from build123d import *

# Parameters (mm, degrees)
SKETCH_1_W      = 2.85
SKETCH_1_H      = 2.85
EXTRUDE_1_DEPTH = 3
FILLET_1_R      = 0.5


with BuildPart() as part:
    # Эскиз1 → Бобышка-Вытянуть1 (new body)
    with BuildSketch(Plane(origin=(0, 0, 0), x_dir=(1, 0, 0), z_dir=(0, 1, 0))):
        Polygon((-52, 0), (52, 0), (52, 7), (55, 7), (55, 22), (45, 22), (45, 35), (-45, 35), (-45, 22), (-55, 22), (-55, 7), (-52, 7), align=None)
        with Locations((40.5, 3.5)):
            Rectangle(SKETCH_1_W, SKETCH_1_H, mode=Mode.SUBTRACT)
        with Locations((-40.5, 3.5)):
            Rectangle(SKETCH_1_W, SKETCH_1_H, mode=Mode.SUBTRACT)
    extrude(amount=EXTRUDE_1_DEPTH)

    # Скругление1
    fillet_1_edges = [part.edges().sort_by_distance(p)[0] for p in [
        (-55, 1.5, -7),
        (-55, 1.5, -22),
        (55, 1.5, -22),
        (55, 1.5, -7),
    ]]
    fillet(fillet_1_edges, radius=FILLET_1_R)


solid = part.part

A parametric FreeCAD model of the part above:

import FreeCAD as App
import Part
import Sketcher
from FreeCAD import Vector
Q = App.Units.Quantity


def edges_at(feature, points):
    """Names of the edges that pass closest to the given points."""
    edges = feature.Shape.Edges
    near = lambda p: min(range(len(edges)), key=lambda i: edges[i].distToShape(Part.Vertex(*p))[0])
    return sorted({f"Edge{near(p) + 1}" for p in points})


def add_polygon(sketch, points):
    """Adds a closed chain of lines whose ends are joined by coincident constraints."""
    first, n = sketch.GeometryCount, len(points)
    for a, b in zip(points, points[1:] + points[:1]):
        sketch.addGeometry(Part.LineSegment(App.Vector(*a, 0), App.Vector(*b, 0)), False)
    for i in range(n):
        sketch.addConstraint(Sketcher.Constraint("Coincident", first + i, 2, first + (i + 1) % n, 1))

doc = App.newDocument("Part")
body = doc.addObject("PartDesign::Body", "Body")

# Sketch on XZ plane
sketch1 = doc.addObject("Sketcher::SketchObject", "Sketch")
body.addObject(sketch1)
sketch1.AttachmentSupport = (doc.XZ_Plane, [""])
sketch1.MapMode = "FlatFace"
add_polygon(sketch1, [(-52, 0), (52, 0), (52, -7), (55, -7), (55, -22), (45, -22), (45, -35), (-45, -35), (-45, -22), (-55, -22), (-55, -7), (-52, -7)])  # lines 0-11
add_polygon(sketch1, [(-39.1, -2.1), (-41.9, -2.1), (-41.9, -4.9), (-39.1, -4.9)])  # lines 12-15
add_polygon(sketch1, [(41.9, -2.1), (39.1, -2.1), (39.1, -4.9), (41.9, -4.9)])  # lines 16-19
sketch1.addConstraint([
    Sketcher.Constraint("Horizontal", 0),
    Sketcher.Constraint("Vertical", 1),
    Sketcher.Constraint("Horizontal", 2),
    Sketcher.Constraint("Vertical", 3),
    Sketcher.Constraint("Horizontal", 4),
    Sketcher.Constraint("Vertical", 5),
    Sketcher.Constraint("Horizontal", 6),
    Sketcher.Constraint("Vertical", 7),
    Sketcher.Constraint("Horizontal", 8),
    Sketcher.Constraint("Vertical", 9),
    Sketcher.Constraint("Horizontal", 10),
    Sketcher.Constraint("Vertical", 11),
    Sketcher.Constraint("Horizontal", 12),
    Sketcher.Constraint("Vertical", 13),
    Sketcher.Constraint("Horizontal", 14),
    Sketcher.Constraint("Vertical", 15),
    Sketcher.Constraint("Horizontal", 16),
    Sketcher.Constraint("Vertical", 17),
    Sketcher.Constraint("Horizontal", 18),
    Sketcher.Constraint("Vertical", 19),
    Sketcher.Constraint("Symmetric", 0, 2, 11, 2, -1, 1),
    Sketcher.Constraint("Symmetric", 4, 2, 7, 2, -2),
    Sketcher.Constraint("Symmetric", 2, 2, 9, 2, -2),
    Sketcher.Constraint("Symmetric", 15, 2, 16, 2, -2),
    Sketcher.Constraint("Symmetric", 13, 2, 18, 2, -2),
    Sketcher.Constraint("Equal", 18, 13),
    Sketcher.Constraint("DistanceX", 0, 1, 0, 2, Q("104 mm")),
    Sketcher.Constraint("DistanceX", 2, 1, 2, 2, Q("3 mm")),
    Sketcher.Constraint("DistanceX", 4, 2, 4, 1, Q("10 mm")),
    Sketcher.Constraint("DistanceY", 1, 2, 1, 1, Q("7 mm")),
    Sketcher.Constraint("DistanceY", 3, 2, 3, 1, Q("15 mm")),
    Sketcher.Constraint("DistanceY", 5, 2, 5, 1, Q("13 mm")),
    Sketcher.Constraint("DistanceX", 12, 2, 12, 1, Q("2.85 mm")),
    Sketcher.Constraint("DistanceX", 12, 2, -1, 1, Q("41.925 mm")),
    Sketcher.Constraint("DistanceY", 12, 2, -1, 1, Q("2.075 mm")),
])
pad1 = doc.addObject("PartDesign::Pad", "Pad")
body.addObject(pad1)
pad1.Profile = sketch1
pad1.Length = 3
pad1.Reversed = True
doc.recompute()

fillet = doc.addObject("PartDesign::Fillet", "Fillet")
body.addObject(fillet)
fillet.Base = (pad1, edges_at(pad1, [
    (-55, 1.5, -7),
    (-55, 1.5, -22),
    (55, 1.5, -22),
    (55, 1.5, -7),
]))
fillet.Radius = 0.5

doc.recompute()
